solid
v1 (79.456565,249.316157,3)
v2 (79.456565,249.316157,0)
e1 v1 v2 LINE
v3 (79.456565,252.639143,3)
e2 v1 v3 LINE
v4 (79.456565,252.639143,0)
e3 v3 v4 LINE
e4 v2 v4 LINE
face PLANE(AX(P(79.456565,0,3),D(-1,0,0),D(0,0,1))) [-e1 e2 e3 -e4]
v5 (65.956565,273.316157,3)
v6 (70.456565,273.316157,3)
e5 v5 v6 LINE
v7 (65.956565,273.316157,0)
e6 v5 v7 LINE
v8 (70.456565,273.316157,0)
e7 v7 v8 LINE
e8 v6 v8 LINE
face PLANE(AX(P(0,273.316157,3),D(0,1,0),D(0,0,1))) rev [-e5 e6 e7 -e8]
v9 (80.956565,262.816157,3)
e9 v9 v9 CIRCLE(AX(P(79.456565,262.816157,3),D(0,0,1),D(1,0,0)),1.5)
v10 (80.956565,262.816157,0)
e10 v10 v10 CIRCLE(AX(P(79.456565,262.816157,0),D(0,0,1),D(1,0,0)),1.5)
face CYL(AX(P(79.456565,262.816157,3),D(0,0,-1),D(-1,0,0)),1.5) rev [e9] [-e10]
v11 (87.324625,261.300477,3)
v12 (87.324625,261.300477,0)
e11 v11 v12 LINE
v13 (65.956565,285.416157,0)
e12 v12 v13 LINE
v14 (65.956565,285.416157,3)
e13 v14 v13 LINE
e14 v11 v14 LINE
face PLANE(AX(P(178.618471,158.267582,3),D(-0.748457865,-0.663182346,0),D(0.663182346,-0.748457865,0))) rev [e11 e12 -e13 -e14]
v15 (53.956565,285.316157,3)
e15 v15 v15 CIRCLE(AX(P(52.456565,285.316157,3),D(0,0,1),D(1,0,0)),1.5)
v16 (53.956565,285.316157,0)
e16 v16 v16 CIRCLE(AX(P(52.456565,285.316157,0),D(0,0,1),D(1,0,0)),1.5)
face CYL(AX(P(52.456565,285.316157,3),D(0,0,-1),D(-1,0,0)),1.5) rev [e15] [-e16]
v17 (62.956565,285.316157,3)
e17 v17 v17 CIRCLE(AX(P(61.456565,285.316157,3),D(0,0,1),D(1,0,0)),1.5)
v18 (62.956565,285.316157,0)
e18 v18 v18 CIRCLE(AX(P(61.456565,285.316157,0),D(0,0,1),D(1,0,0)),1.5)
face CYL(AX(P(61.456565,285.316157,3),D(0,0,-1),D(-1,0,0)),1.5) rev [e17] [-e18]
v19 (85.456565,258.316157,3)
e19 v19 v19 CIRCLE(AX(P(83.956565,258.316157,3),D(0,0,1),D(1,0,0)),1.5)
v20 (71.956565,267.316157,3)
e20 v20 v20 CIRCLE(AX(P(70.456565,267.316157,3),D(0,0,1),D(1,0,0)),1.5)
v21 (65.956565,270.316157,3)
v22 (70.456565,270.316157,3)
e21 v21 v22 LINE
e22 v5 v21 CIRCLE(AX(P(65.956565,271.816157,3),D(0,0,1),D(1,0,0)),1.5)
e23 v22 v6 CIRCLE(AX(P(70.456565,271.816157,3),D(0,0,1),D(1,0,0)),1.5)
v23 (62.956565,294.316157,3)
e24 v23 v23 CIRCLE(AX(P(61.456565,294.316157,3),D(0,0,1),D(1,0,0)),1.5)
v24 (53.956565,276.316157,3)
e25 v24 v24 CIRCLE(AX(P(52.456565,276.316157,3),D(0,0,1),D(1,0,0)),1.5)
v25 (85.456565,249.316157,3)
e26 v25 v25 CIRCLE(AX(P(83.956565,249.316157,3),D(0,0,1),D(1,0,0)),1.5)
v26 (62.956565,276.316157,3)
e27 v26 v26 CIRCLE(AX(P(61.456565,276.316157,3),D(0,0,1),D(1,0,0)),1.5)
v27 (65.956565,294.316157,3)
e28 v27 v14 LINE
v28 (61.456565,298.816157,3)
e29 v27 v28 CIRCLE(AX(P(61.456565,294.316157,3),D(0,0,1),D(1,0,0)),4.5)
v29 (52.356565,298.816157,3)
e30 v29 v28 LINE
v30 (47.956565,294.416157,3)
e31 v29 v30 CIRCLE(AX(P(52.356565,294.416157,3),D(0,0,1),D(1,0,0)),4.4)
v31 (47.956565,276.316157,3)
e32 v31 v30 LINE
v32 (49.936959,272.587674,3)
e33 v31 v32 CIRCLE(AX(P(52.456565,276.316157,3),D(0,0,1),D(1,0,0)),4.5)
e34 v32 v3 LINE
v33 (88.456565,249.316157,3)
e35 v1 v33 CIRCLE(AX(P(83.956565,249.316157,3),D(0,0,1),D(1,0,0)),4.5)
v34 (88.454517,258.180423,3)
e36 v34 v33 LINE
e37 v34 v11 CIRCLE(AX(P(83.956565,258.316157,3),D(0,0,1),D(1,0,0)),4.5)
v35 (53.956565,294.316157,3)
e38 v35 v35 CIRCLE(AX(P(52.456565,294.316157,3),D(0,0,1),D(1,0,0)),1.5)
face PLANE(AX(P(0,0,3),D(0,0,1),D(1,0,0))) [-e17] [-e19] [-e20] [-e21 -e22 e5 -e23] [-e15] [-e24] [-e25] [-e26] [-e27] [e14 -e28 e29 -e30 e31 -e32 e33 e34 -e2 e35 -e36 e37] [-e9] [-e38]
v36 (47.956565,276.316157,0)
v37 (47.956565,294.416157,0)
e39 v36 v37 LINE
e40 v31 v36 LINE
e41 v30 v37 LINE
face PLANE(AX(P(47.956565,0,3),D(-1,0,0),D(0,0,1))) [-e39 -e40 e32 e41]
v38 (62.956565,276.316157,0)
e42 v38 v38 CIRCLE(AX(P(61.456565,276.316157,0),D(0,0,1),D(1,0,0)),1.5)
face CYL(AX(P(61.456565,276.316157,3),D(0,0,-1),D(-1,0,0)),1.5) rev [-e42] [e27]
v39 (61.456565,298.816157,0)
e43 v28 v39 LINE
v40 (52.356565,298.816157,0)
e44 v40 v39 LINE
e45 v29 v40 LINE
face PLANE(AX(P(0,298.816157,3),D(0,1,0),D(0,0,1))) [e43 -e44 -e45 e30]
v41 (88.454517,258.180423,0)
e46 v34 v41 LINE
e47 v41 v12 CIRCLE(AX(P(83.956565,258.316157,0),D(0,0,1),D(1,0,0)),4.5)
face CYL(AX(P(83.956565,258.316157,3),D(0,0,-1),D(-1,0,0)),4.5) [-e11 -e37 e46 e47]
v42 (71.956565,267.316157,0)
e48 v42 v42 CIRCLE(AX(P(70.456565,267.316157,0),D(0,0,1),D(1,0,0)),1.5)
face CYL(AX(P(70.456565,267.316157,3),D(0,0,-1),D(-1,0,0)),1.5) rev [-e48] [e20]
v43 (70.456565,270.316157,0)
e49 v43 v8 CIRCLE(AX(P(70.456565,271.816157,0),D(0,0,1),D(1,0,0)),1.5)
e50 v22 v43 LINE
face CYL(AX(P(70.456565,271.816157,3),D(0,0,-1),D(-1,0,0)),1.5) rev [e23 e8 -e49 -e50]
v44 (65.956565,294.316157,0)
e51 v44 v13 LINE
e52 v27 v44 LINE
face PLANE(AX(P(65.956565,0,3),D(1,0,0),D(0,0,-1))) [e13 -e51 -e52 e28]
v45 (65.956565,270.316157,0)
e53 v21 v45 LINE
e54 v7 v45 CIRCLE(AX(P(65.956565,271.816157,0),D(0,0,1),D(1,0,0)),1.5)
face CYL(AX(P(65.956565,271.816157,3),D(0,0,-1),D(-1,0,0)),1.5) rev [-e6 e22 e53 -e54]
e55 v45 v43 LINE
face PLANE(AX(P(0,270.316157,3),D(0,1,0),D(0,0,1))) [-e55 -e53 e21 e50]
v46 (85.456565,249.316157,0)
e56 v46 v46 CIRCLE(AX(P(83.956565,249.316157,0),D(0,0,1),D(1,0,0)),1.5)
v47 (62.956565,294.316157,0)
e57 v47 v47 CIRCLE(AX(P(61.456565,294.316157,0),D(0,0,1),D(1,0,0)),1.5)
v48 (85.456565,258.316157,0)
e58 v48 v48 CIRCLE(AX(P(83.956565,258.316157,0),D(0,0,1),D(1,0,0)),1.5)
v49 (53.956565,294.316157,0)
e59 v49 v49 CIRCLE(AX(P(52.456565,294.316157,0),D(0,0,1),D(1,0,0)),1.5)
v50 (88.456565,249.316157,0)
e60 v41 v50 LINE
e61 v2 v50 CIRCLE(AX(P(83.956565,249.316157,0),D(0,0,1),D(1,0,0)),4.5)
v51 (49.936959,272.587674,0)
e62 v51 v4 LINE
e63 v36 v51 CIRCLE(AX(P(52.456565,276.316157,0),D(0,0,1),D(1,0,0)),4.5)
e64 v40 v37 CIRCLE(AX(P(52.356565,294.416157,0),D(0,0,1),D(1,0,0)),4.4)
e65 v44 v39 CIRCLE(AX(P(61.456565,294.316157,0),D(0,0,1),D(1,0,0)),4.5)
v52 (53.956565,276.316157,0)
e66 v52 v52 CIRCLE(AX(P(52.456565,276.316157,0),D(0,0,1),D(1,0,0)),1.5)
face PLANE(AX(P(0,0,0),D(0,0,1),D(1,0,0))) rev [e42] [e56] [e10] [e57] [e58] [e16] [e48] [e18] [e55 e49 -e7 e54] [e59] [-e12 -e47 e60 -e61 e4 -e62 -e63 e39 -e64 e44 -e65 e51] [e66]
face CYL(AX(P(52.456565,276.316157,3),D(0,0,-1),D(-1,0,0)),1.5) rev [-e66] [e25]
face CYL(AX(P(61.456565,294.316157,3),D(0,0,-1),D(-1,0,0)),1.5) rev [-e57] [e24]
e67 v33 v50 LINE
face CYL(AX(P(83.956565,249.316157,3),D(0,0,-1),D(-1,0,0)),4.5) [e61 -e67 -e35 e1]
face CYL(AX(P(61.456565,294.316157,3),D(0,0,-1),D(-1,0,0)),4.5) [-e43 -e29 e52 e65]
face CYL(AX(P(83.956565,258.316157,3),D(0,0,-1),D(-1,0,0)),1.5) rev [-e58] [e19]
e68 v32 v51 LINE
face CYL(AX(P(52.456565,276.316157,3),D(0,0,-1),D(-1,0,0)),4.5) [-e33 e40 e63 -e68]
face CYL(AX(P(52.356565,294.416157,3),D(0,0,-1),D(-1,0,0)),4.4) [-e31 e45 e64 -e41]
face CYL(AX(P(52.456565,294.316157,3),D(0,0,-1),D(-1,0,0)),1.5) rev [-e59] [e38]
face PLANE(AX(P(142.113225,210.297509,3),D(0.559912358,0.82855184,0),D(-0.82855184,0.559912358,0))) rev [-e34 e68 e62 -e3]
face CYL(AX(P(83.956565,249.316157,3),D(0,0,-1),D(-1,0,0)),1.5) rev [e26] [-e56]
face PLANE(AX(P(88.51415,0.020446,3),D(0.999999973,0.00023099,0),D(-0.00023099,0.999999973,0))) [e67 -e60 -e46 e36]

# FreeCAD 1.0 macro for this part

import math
import FreeCAD as App
import Part
import Sketcher

V = App.Vector
Q = App.Units.Quantity

doc = App.newDocument("Part")
body = doc.addObject("PartDesign::Body", "Body")

# Sketch on XY plane
sketch1 = body.newObject("Sketcher::SketchObject", "Sketch")
sketch1.AttachmentSupport = (doc.getObject("XY_Plane"), [""])
sketch1.MapMode = "FlatFace"
sketch1.addGeometry([
    Part.LineSegment(V(47.9566, 294.4162, 0), V(47.9566, 276.3162, 0)),  # 0
    Part.ArcOfCircle(Part.Circle(V(52.4566, 276.3162, 0), V(0, 0, 1), 4.5), math.radians(180), math.radians(236)),  # 1
    Part.LineSegment(V(49.937, 272.5877, 0), V(70.4566, 258.7211, 0)),  # 2
    Part.LineSegment(V(70.4566, 258.7211, 0), V(79.4566, 252.6391, 0)),  # 3
    Part.LineSegment(V(79.4566, 252.6391, 0), V(79.4566, 249.3162, 0)),  # 4
    Part.ArcOfCircle(Part.Circle(V(83.9566, 249.3162, 0), V(0, 0, 1), 4.5), math.radians(180), math.radians(360)),  # 5
    Part.LineSegment(V(88.4566, 249.3162, 0), V(88.4566, 249.3182, 0)),  # 6
    Part.LineSegment(V(88.4566, 249.3182, 0), V(88.4545, 258.1804, 0)),  # 7
    Part.ArcOfCircle(Part.Circle(V(83.9566, 258.3162, 0), V(0, 0, 1), 4.5), math.radians(-2), math.radians(42)),  # 8
    Part.LineSegment(V(87.3246, 261.3005, 0), V(65.9566, 285.4162, 0)),  # 9
    Part.LineSegment(V(65.9566, 285.4162, 0), V(65.9566, 294.3162, 0)),  # 10
    Part.ArcOfCircle(Part.Circle(V(61.4566, 294.3162, 0), V(0, 0, 1), 4.5), math.radians(0), math.radians(90)),  # 11
    Part.LineSegment(V(61.4566, 298.8162, 0), V(52.3566, 298.8162, 0)),  # 12
    Part.ArcOfCircle(Part.Circle(V(52.3566, 294.4162, 0), V(0, 0, 1), 4.4), math.radians(90), math.radians(180)),  # 13
    Part.Circle(V(83.9566, 249.3162, 0), V(0, 0, 1), 1.5),  # 14
    Part.Circle(V(83.9566, 258.3162, 0), V(0, 0, 1), 1.5),  # 15
    Part.Circle(V(70.4566, 267.3162, 0), V(0, 0, 1), 1.5),  # 16
    Part.Circle(V(79.4566, 262.8162, 0), V(0, 0, 1), 1.5),  # 17
    Part.Circle(V(52.4566, 276.3162, 0), V(0, 0, 1), 1.5),  # 18
    Part.Circle(V(61.4566, 276.3162, 0), V(0, 0, 1), 1.5),  # 19
    Part.Circle(V(52.4566, 285.3162, 0), V(0, 0, 1), 1.5),  # 20
    Part.Circle(V(52.4566, 294.3162, 0), V(0, 0, 1), 1.5),  # 21
    Part.Circle(V(61.4566, 285.3162, 0), V(0, 0, 1), 1.5),  # 22
    Part.Circle(V(61.4566, 294.3162, 0), V(0, 0, 1), 1.5),  # 23
    Part.LineSegment(V(70.4566, 270.3162, 0), V(65.9566, 270.3162, 0)),  # 24
    Part.ArcOfCircle(Part.Circle(V(65.9566, 271.8162, 0), V(0, 0, 1), 1.5), math.radians(90), math.radians(270)),  # 25
    Part.LineSegment(V(65.9566, 273.3162, 0), V(70.4566, 273.3162, 0)),  # 26
    Part.ArcOfCircle(Part.Circle(V(70.4566, 271.8162, 0), V(0, 0, 1), 1.5), math.radians(-90), math.radians(90)),  # 27
], False)
sketch1.addConstraint([
    Sketcher.Constraint("Tangent", 0, 2, 1, 1),
    Sketcher.Constraint("Tangent", 1, 2, 2, 1),
    Sketcher.Constraint("Coincident", 2, 2, 3, 1),
    Sketcher.Constraint("Coincident", 3, 2, 4, 1),
    Sketcher.Constraint("Tangent", 4, 2, 5, 1),
    Sketcher.Constraint("Coincident", 5, 2, 6, 1),
    Sketcher.Constraint("Coincident", 6, 2, 7, 1),
    Sketcher.Constraint("Coincident", 7, 2, 8, 1),
    Sketcher.Constraint("Tangent", 8, 2, 9, 1),
    Sketcher.Constraint("Coincident", 9, 2, 10, 1),
    Sketcher.Constraint("Tangent", 10, 2, 11, 1),
    Sketcher.Constraint("Tangent", 11, 2, 12, 1),
    Sketcher.Constraint("Tangent", 12, 2, 13, 1),
    Sketcher.Constraint("Tangent", 13, 2, 0, 1),
    Sketcher.Constraint("Tangent", 24, 2, 25, 2),
    Sketcher.Constraint("Tangent", 25, 1, 26, 1),
    Sketcher.Constraint("Tangent", 26, 2, 27, 2),
    Sketcher.Constraint("Tangent", 27, 1, 24, 1),
    Sketcher.Constraint("Vertical", 0),
    Sketcher.Constraint("Vertical", 4),
    Sketcher.Constraint("Vertical", 6),
    Sketcher.Constraint("Vertical", 10),
    Sketcher.Constraint("Horizontal", 12),
    Sketcher.Constraint("Horizontal", 24),
    Sketcher.Constraint("Horizontal", 26),
    Sketcher.Constraint("Coincident", 14, 3, 5, 3),
    Sketcher.Constraint("Coincident", 15, 3, 8, 3),
    Sketcher.Constraint("Coincident", 18, 3, 1, 3),
    Sketcher.Constraint("Coincident", 23, 3, 11, 3),
    Sketcher.Constraint("Equal", 1, 5),
    Sketcher.Constraint("Equal", 5, 8),
    Sketcher.Constraint("Equal", 8, 11),
    Sketcher.Constraint("Equal", 14, 15),
    Sketcher.Constraint("Equal", 15, 16),
    Sketcher.Constraint("Equal", 16, 17),
    Sketcher.Constraint("Equal", 17, 18),
    Sketcher.Constraint("Equal", 18, 19),
    Sketcher.Constraint("Equal", 19, 20),
    Sketcher.Constraint("Equal", 20, 21),
    Sketcher.Constraint("Equal", 21, 22),
    Sketcher.Constraint("Equal", 22, 23),
    Sketcher.Constraint("Equal", 23, 25),
    Sketcher.Constraint("Parallel", 2, 3),
    Sketcher.Constraint("Horizontal", 18, 3, 19, 3),
    Sketcher.Constraint("Horizontal", 11, 3, 21, 3),
    Sketcher.Constraint("Horizontal", 20, 3, 22, 3),
    Sketcher.Constraint("Horizontal", 4, 2, 5, 2),
    Sketcher.Constraint("Vertical", 5, 3, 8, 3),
    Sketcher.Constraint("Vertical", 11, 3, 19, 3),
    Sketcher.Constraint("Vertical", 18, 3, 20, 3),
    Sketcher.Constraint("Vertical", 20, 3, 21, 3),
    Sketcher.Constraint("Vertical", 19, 3, 22, 3),
    Sketcher.Constraint("Vertical", 16, 3, 27, 3),
    Sketcher.Constraint("Vertical", 27, 3, 2, 2),
    Sketcher.Constraint("Vertical", 17, 3, 3, 2),
    Sketcher.Constraint("Vertical", 25, 3, 9, 2),
    Sketcher.Constraint("Diameter", 14, Q("3 mm")),
    Sketcher.Constraint("Radius", 1, Q("4.5 mm")),
    Sketcher.Constraint("Radius", 13, Q("4.4 mm")),
    Sketcher.Constraint("DistanceX", 12, 2, 12, 1, Q("9.1 mm")),
    Sketcher.Constraint("DistanceX", 24, 2, 24, 1, Q("4.5 mm")),
    Sketcher.Constraint("DistanceY", 0, 2, 0, 1, Q("18.1 mm")),
    Sketcher.Constraint("DistanceY", 10, 1, 10, 2, Q("8.9 mm")),
    Sketcher.Constraint("DistanceY", 5, 3, 1, 3, Q("27 mm")),
    Sketcher.Constraint("DistanceY", 5, 3, 8, 3, Q("9 mm")),
    Sketcher.Constraint("DistanceY", 8, 3, 16, 3, Q("9 mm")),
    Sketcher.Constraint("DistanceX", 16, 3, 17, 3, Q("9 mm")),
    Sketcher.Constraint("DistanceY", 1, 3, 20, 3, Q("9 mm")),
    Sketcher.Constraint("DistanceY", 17, 3, 27, 3, Q("9 mm")),
    Sketcher.Constraint("DistanceY", 16, 3, 24, 2, Q("3 mm")),
    Sketcher.Constraint("DistanceY", 6, 1, 6, 2, Q("0.002079 mm")),
    Sketcher.Constraint("DistanceY", 4, 2, 4, 1, Q("3.322986 mm")),
    Sketcher.Constraint("DistanceX", -1, 1, 1, 2, Q("49.936959 mm")),
    Sketcher.Constraint("Distance", 7, Q("8.862187 mm")),
    Sketcher.Constraint("DistanceY", -1, 1, 1, 3, Q("276.316157 mm")),
])
pad1 = body.newObject("PartDesign::Pad", "Pad")
pad1.Profile = sketch1
pad1.Length = 3

doc.recompute()
